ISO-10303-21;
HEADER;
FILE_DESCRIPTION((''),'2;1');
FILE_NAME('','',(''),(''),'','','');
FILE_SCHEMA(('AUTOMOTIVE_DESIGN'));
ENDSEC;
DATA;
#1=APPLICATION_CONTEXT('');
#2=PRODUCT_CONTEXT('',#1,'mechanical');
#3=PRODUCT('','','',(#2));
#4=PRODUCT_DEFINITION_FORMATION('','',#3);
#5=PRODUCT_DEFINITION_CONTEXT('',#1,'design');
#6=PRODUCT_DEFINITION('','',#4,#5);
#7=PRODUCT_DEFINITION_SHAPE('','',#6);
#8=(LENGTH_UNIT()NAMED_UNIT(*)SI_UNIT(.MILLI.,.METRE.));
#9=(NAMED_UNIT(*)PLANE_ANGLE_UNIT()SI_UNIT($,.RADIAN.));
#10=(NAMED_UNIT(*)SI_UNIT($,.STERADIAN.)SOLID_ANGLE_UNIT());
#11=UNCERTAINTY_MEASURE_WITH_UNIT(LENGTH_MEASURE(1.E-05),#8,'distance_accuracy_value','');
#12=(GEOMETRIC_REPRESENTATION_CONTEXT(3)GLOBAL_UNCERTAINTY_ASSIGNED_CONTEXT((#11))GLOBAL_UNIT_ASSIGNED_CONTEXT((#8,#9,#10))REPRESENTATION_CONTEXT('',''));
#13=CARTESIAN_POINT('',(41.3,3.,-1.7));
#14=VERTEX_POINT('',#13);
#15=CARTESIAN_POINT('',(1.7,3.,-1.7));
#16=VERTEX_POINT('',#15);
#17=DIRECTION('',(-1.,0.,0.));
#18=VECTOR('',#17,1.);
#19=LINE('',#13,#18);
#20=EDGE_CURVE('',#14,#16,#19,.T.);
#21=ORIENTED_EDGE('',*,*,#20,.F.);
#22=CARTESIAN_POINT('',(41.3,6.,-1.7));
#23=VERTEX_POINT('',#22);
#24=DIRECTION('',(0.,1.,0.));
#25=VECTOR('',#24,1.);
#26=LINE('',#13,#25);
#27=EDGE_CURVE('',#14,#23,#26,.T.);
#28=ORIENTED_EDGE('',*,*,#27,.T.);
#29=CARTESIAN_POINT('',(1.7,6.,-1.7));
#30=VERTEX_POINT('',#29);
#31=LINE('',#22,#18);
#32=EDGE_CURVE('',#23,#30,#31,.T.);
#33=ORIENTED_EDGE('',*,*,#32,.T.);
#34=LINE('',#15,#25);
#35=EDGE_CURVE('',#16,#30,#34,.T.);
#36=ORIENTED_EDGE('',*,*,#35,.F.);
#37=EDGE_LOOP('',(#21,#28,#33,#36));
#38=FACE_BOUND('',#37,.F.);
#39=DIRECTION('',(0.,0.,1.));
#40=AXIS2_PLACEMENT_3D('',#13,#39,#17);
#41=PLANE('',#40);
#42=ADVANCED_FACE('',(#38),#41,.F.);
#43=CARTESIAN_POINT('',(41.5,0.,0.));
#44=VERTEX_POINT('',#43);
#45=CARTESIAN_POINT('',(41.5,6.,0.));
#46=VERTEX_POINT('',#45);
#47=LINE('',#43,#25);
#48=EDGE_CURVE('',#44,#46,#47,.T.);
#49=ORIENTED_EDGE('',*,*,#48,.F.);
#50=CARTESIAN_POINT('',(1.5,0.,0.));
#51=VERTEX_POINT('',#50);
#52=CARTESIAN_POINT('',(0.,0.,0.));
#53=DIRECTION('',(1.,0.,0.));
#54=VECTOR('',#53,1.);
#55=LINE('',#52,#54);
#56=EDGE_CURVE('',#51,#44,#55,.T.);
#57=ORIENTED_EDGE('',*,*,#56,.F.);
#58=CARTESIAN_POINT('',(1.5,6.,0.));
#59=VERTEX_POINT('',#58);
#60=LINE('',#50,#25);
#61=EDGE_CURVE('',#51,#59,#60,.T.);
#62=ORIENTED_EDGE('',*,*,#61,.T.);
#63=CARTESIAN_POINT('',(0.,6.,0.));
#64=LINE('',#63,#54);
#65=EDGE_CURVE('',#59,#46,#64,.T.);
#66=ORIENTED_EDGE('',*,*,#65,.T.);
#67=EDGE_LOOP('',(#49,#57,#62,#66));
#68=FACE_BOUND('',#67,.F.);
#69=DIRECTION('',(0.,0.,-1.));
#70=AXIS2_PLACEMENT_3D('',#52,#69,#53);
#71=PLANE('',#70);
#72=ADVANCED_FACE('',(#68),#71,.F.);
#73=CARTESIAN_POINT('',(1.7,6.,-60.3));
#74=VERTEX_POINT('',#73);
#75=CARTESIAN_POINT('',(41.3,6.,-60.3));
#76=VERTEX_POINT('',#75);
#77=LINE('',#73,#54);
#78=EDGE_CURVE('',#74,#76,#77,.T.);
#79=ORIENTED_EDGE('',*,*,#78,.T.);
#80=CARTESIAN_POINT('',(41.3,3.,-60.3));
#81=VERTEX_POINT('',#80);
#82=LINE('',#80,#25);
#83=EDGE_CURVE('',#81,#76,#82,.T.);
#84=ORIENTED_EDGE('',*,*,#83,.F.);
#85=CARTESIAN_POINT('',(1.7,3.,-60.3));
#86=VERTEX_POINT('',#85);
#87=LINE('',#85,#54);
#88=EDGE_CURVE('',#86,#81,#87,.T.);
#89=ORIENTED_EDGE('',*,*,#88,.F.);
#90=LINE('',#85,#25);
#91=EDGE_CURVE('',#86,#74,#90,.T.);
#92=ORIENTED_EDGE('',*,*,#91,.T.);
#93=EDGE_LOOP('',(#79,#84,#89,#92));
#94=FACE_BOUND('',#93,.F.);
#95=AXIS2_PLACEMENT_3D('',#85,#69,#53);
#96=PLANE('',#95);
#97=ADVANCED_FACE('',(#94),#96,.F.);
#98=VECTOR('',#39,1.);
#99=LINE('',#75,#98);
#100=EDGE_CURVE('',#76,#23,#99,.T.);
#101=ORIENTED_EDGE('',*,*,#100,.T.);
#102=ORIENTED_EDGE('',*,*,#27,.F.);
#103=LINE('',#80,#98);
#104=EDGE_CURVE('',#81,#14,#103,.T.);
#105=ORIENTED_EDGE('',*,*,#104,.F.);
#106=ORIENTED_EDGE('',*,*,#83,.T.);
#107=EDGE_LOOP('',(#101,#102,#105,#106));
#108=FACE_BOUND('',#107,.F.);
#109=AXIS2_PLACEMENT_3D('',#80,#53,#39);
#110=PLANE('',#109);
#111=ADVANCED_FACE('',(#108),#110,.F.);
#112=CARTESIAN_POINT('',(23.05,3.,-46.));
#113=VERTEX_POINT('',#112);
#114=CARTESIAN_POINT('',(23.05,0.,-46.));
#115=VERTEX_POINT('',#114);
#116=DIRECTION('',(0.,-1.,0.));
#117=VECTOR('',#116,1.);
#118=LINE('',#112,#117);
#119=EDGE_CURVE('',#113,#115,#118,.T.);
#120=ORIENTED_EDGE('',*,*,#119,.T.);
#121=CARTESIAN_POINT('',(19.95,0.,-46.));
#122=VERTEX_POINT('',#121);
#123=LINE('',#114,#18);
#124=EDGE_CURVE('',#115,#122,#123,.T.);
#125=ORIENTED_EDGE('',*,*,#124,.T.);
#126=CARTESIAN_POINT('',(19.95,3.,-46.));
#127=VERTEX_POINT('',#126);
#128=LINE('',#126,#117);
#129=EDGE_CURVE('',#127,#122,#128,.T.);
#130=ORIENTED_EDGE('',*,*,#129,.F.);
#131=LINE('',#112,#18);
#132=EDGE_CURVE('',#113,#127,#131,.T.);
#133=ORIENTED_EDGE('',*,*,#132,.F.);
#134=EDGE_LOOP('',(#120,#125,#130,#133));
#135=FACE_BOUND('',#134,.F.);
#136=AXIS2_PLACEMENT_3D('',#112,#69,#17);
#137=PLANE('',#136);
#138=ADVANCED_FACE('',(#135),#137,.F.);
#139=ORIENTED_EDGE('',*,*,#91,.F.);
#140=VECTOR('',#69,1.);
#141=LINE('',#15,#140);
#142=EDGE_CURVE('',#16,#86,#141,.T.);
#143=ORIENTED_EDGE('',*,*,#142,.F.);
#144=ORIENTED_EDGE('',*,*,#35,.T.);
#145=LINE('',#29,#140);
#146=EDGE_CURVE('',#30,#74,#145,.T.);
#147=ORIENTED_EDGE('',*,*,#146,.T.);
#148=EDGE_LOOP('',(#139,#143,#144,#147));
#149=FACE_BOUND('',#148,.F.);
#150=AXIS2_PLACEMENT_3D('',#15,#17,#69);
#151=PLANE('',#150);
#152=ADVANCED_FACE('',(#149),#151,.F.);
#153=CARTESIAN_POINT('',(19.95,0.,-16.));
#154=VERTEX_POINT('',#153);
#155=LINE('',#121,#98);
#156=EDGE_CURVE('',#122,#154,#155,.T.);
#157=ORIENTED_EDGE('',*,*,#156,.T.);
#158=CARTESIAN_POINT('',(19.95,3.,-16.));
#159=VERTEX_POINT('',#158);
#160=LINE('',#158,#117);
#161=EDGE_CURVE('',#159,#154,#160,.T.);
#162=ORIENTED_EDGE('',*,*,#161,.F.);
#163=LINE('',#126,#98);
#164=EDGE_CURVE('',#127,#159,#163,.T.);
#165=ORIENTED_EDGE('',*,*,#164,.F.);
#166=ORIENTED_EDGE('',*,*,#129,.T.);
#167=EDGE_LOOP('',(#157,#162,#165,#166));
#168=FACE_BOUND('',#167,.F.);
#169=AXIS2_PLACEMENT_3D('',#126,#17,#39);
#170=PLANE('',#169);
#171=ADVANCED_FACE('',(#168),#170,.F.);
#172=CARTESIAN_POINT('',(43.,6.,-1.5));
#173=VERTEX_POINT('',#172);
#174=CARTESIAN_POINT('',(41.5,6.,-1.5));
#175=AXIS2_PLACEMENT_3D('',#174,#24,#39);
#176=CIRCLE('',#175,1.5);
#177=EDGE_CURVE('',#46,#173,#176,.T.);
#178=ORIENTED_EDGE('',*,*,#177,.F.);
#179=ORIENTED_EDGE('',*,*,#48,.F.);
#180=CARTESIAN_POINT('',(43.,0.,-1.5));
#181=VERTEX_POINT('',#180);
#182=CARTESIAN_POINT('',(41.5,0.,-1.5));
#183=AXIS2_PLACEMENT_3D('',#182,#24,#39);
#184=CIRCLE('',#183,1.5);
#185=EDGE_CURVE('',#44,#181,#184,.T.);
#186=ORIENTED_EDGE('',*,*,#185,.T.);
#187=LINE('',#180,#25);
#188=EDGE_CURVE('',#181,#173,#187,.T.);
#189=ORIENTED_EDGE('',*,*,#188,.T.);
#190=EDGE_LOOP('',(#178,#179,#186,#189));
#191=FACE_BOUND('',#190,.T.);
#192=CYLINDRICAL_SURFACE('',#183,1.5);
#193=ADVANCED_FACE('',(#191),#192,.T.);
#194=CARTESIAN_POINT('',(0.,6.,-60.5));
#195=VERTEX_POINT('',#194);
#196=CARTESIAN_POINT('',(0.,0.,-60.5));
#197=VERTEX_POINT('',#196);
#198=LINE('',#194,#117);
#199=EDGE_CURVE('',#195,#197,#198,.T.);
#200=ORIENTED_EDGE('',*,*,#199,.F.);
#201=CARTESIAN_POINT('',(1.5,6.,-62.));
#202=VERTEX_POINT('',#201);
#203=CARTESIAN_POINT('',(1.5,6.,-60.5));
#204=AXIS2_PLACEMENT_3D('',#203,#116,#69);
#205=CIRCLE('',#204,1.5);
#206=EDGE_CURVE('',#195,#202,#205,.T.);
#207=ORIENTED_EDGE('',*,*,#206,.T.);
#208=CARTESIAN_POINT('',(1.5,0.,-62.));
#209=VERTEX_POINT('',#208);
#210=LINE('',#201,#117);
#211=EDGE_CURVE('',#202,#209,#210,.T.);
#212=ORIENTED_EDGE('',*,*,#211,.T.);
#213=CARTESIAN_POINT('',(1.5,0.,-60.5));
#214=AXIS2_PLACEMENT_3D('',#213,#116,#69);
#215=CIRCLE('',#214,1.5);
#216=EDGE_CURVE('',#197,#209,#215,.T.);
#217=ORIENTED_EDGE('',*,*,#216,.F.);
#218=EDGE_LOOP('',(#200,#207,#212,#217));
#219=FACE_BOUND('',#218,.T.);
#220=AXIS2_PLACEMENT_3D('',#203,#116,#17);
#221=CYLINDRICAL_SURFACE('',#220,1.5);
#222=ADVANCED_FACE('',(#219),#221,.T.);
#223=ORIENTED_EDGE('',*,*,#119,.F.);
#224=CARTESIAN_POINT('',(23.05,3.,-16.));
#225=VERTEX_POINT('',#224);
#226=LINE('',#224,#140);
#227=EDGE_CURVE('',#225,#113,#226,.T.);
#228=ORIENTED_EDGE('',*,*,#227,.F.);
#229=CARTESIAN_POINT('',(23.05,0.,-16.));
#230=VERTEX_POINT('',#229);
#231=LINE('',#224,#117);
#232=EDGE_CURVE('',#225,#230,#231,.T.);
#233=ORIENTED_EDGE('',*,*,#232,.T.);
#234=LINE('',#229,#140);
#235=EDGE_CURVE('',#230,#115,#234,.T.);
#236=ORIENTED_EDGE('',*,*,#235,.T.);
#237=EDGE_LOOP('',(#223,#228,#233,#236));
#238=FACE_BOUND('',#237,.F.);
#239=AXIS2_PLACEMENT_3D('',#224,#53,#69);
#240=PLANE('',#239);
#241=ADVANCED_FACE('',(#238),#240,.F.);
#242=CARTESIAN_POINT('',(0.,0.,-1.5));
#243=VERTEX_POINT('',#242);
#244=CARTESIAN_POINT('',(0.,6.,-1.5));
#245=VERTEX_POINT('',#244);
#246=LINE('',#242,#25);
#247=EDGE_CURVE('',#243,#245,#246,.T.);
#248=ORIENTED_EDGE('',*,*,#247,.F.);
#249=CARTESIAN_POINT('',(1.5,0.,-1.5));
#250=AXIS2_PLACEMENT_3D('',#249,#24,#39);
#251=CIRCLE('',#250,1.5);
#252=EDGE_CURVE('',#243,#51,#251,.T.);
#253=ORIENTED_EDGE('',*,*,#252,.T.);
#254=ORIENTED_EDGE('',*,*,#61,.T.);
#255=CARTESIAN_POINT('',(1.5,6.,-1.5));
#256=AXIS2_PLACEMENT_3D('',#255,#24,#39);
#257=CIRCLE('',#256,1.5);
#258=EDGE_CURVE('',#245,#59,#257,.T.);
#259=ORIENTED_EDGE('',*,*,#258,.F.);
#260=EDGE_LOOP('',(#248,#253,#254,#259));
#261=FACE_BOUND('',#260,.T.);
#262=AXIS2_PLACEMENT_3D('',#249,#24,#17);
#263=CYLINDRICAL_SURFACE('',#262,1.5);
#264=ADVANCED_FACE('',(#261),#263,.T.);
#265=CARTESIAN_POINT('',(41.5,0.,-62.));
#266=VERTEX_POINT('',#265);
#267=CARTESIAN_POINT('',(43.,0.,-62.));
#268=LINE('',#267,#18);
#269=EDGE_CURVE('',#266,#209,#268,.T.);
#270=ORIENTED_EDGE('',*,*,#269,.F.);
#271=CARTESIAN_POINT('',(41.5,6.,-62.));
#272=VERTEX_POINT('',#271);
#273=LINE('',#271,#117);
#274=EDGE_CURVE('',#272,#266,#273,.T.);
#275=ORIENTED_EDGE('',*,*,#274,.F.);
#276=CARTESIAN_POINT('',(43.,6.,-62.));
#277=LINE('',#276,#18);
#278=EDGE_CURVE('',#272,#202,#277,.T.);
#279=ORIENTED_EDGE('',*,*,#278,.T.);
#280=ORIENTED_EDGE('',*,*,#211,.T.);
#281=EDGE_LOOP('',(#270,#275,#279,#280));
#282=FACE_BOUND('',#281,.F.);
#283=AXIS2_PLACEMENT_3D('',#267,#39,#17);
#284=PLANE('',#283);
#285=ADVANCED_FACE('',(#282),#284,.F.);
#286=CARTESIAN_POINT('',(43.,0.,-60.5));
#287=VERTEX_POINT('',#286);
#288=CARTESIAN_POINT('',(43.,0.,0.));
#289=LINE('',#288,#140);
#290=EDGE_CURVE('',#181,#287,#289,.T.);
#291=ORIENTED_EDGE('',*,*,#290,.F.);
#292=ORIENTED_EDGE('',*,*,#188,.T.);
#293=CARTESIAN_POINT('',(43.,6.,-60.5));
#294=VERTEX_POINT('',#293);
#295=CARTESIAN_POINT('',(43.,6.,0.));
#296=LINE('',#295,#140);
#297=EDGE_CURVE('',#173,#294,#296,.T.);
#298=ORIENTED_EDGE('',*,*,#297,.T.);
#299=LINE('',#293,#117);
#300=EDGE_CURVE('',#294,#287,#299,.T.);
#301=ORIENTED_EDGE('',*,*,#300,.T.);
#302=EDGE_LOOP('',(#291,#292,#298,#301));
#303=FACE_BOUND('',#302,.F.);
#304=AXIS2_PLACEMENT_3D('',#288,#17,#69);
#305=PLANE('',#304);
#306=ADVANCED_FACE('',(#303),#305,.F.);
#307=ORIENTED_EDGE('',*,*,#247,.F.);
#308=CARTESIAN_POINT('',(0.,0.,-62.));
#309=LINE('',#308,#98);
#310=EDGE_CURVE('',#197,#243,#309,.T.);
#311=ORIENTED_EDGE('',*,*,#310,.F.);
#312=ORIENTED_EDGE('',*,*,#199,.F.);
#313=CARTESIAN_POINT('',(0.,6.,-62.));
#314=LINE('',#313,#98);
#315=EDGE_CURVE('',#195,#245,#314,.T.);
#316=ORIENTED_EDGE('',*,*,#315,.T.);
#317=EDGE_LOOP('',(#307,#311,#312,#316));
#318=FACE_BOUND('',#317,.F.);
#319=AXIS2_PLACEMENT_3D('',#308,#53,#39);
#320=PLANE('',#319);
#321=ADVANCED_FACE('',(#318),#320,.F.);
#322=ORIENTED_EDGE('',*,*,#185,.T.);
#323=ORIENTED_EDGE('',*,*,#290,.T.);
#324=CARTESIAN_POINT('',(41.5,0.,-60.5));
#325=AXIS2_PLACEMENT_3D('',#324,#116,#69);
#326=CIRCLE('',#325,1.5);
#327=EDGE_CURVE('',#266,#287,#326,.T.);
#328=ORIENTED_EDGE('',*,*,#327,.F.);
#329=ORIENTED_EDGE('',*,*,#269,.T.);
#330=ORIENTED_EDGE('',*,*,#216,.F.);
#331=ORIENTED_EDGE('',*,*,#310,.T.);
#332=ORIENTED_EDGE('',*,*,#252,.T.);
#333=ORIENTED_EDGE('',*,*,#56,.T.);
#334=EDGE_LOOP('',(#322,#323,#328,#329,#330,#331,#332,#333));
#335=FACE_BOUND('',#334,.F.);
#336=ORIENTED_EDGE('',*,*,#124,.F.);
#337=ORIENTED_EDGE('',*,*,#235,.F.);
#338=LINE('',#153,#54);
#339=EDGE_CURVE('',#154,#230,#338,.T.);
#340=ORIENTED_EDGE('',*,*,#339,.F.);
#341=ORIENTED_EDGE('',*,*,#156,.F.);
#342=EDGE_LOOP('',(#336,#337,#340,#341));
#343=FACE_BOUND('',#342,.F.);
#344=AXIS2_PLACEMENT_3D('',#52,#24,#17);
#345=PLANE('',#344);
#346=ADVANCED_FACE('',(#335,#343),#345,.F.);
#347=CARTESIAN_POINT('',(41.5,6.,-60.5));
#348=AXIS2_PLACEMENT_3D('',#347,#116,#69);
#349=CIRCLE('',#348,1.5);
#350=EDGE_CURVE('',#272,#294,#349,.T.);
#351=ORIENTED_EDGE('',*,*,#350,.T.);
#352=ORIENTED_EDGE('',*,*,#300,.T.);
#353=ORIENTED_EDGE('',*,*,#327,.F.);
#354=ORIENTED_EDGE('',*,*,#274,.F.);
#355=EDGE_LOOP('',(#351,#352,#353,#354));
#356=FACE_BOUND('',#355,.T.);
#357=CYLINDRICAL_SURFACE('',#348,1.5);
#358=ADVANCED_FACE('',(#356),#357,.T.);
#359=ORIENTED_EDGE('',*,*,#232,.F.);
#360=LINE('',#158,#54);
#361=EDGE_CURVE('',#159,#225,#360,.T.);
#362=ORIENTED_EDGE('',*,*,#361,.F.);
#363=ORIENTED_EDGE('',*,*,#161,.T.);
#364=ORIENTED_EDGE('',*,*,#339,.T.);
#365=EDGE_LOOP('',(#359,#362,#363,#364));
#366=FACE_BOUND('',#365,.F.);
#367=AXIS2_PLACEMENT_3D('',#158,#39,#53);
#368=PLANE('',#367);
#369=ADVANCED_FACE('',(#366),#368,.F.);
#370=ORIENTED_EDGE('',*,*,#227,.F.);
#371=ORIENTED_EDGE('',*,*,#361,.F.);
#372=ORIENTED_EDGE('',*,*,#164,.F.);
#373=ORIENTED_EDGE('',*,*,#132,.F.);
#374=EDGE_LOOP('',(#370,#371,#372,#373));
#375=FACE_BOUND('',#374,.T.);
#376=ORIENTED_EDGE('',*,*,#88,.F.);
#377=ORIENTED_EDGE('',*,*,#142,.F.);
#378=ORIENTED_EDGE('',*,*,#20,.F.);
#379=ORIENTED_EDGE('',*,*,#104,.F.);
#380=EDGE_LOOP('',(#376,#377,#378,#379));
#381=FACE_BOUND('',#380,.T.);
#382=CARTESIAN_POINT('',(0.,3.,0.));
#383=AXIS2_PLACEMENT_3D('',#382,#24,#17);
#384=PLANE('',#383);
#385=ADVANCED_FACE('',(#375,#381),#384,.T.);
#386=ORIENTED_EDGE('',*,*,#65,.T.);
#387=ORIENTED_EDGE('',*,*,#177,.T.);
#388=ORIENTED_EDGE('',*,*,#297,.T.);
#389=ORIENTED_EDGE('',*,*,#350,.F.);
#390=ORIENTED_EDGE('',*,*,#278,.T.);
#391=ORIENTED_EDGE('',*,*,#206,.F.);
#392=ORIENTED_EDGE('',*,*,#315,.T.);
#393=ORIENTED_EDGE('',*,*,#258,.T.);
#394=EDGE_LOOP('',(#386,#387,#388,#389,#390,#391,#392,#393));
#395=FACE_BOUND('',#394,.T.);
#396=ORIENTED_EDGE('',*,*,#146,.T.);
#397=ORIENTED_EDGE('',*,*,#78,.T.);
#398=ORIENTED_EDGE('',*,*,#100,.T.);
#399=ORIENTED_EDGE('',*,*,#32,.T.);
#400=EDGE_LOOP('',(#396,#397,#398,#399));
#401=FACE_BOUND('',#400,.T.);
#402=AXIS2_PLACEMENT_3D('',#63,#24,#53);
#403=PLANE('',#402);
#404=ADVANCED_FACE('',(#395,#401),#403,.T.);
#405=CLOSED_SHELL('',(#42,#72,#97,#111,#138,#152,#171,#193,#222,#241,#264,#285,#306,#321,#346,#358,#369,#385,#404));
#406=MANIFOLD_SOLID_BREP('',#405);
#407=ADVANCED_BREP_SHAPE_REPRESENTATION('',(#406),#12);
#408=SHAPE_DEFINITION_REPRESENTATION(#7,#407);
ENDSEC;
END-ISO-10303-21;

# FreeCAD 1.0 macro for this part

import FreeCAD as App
import Part
import Sketcher
Q = App.Units.Quantity


def edges_at(feature, points):
    """Names of the edges that pass closest to the given points."""
    edges = feature.Shape.Edges
    near = lambda p: min(range(len(edges)), key=lambda i: edges[i].distToShape(Part.Vertex(*p))[0])
    return sorted({f"Edge{near(p) + 1}" for p in points})

doc = App.newDocument("Part")
body = doc.addObject("PartDesign::Body", "Body")

sketch1 = body.newObject("Sketcher::SketchObject", "Sketch")
sketch1.AttachmentSupport = (doc.getObject("XZ_Plane"), [""])
sketch1.MapMode = "FlatFace"
sketch1.addGeometry(Part.LineSegment(App.Vector(0, -62, 0), App.Vector(0, 0, 0)), False)
sketch1.addGeometry(Part.LineSegment(App.Vector(0, 0, 0), App.Vector(43, 0, 0)), False)
sketch1.addGeometry(Part.LineSegment(App.Vector(43, 0, 0), App.Vector(43, -62, 0)), False)
sketch1.addGeometry(Part.LineSegment(App.Vector(43, -62, 0), App.Vector(0, -62, 0)), False)
sketch1.addConstraint(Sketcher.Constraint("Coincident", 0, 2, 1, 1))
sketch1.addConstraint(Sketcher.Constraint("Coincident", 1, 2, 2, 1))
sketch1.addConstraint(Sketcher.Constraint("Coincident", 2, 2, 3, 1))
sketch1.addConstraint(Sketcher.Constraint("Coincident", 3, 2, 0, 1))
sketch1.addConstraint(Sketcher.Constraint("Vertical", 0))
sketch1.addConstraint(Sketcher.Constraint("Horizontal", 1))
sketch1.addConstraint(Sketcher.Constraint("Vertical", 2))
sketch1.addConstraint(Sketcher.Constraint("Horizontal", 3))
sketch1.addConstraint(Sketcher.Constraint("Coincident", 0, 2, -1, 1))
sketch1.addConstraint(Sketcher.Constraint("DistanceX", 1, 1, 1, 2, Q("43 mm")))
sketch1.addConstraint(Sketcher.Constraint("DistanceY", 0, 1, 0, 2, Q("62 mm")))
pad1 = body.newObject("PartDesign::Pad", "Pad")
pad1.Profile = sketch1
pad1.Length = 3
pad1.Reversed = True

sketch2 = body.newObject("Sketcher::SketchObject", "Sketch001")
sketch2.AttachmentSupport = (doc.getObject("XZ_Plane"), [""])
sketch2.MapMode = "FlatFace"
sketch2.AttachmentOffset = App.Placement(App.Vector(0, 0, -3), App.Rotation())
sketch2.addGeometry(Part.LineSegment(App.Vector(0, 0, 0), App.Vector(43, 0, 0)), False)
sketch2.addGeometry(Part.LineSegment(App.Vector(43, 0, 0), App.Vector(43, -62, 0)), False)
sketch2.addGeometry(Part.LineSegment(App.Vector(43, -62, 0), App.Vector(0, -62, 0)), False)
sketch2.addGeometry(Part.LineSegment(App.Vector(0, -62, 0), App.Vector(0, 0, 0)), False)
sketch2.addGeometry(Part.LineSegment(App.Vector(1.7, -1.7, 0), App.Vector(1.7, -60.3, 0)), False)
sketch2.addGeometry(Part.LineSegment(App.Vector(1.7, -60.3, 0), App.Vector(41.3, -60.3, 0)), False)
sketch2.addGeometry(Part.LineSegment(App.Vector(41.3, -60.3, 0), App.Vector(41.3, -1.7, 0)), False)
sketch2.addGeometry(Part.LineSegment(App.Vector(41.3, -1.7, 0), App.Vector(1.7, -1.7, 0)), False)
sketch2.addConstraint(Sketcher.Constraint("Coincident", 0, 2, 1, 1))
sketch2.addConstraint(Sketcher.Constraint("Coincident", 1, 2, 2, 1))
sketch2.addConstraint(Sketcher.Constraint("Coincident", 2, 2, 3, 1))
sketch2.addConstraint(Sketcher.Constraint("Coincident", 3, 2, 0, 1))
sketch2.addConstraint(Sketcher.Constraint("Coincident", 4, 2, 5, 1))
sketch2.addConstraint(Sketcher.Constraint("Coincident", 5, 2, 6, 1))
sketch2.addConstraint(Sketcher.Constraint("Coincident", 6, 2, 7, 1))
sketch2.addConstraint(Sketcher.Constraint("Coincident", 7, 2, 4, 1))
sketch2.addConstraint(Sketcher.Constraint("Horizontal", 0))
sketch2.addConstraint(Sketcher.Constraint("Vertical", 1))
sketch2.addConstraint(Sketcher.Constraint("Horizontal", 2))
sketch2.addConstraint(Sketcher.Constraint("Vertical", 3))
sketch2.addConstraint(Sketcher.Constraint("Vertical", 4))
sketch2.addConstraint(Sketcher.Constraint("Horizontal", 5))
sketch2.addConstraint(Sketcher.Constraint("Vertical", 6))
sketch2.addConstraint(Sketcher.Constraint("Horizontal", 7))
sketch2.addConstraint(Sketcher.Constraint("Coincident", 3, 2, -1, 1))
sketch2.addConstraint(Sketcher.Constraint("DistanceX", -1, 1, 4, 2, Q("1.7 mm")))
sketch2.addConstraint(Sketcher.Constraint("DistanceY", 6, 2, -1, 1, Q("1.7 mm")))
sketch2.addConstraint(Sketcher.Constraint("DistanceY", 2, 2, 4, 2, Q("1.7 mm")))
sketch2.addConstraint(Sketcher.Constraint("DistanceX", 5, 2, 1, 2, Q("1.7 mm")))
sketch2.addConstraint(Sketcher.Constraint("DistanceX", 0, 1, 0, 2, Q("43 mm")))
sketch2.addConstraint(Sketcher.Constraint("DistanceY", 1, 2, 1, 1, Q("62 mm")))
pad2 = body.newObject("PartDesign::Pad", "Pad001")
pad2.Profile = sketch2
pad2.Length = 3
pad2.Reversed = True

sketch3 = body.newObject("Sketcher::SketchObject", "Sketch002")
sketch3.AttachmentSupport = (doc.getObject("XZ_Plane"), [""])
sketch3.MapMode = "FlatFace"
sketch3.AttachmentOffset = App.Placement(App.Vector(0, 0, -3), App.Rotation())
sketch3.addGeometry(Part.LineSegment(App.Vector(23.05, -16, 0), App.Vector(23.05, -46, 0)), False)
sketch3.addGeometry(Part.LineSegment(App.Vector(23.05, -46, 0), App.Vector(19.95, -46, 0)), False)
sketch3.addGeometry(Part.LineSegment(App.Vector(19.95, -46, 0), App.Vector(19.95, -16, 0)), False)
sketch3.addGeometry(Part.LineSegment(App.Vector(19.95, -16, 0), App.Vector(23.05, -16, 0)), False)
sketch3.addConstraint(Sketcher.Constraint("Coincident", 0, 2, 1, 1))
sketch3.addConstraint(Sketcher.Constraint("Coincident", 1, 2, 2, 1))
sketch3.addConstraint(Sketcher.Constraint("Coincident", 2, 2, 3, 1))
sketch3.addConstraint(Sketcher.Constraint("Coincident", 3, 2, 0, 1))
sketch3.addConstraint(Sketcher.Constraint("Vertical", 0))
sketch3.addConstraint(Sketcher.Constraint("Horizontal", 1))
sketch3.addConstraint(Sketcher.Constraint("Vertical", 2))
sketch3.addConstraint(Sketcher.Constraint("Horizontal", 3))
sketch3.addConstraint(Sketcher.Constraint("DistanceY", 0, 2, 0, 1, Q("30 mm")))
sketch3.addConstraint(Sketcher.Constraint("DistanceX", 1, 2, 1, 1, Q("3.1 mm")))
sketch3.addConstraint(Sketcher.Constraint("DistanceY", 0, 2, -1, 1, Q("46 mm")))
sketch3.addConstraint(Sketcher.Constraint("DistanceX", -1, 1, 0, 2, Q("23.05 mm")))
pocket1 = body.newObject("PartDesign::Pocket", "Pocket")
pocket1.Profile = sketch3
pocket1.Length = 3
pocket1.Reversed = True
doc.recompute()

fillet = body.newObject("PartDesign::Fillet", "Fillet")
fillet.Base = (pocket1, edges_at(pocket1, [
    (43, 3, 0),
    (0, 3, 0),
    (0, 3, -62),
    (43, 3, -62),
]))
fillet.Radius = 1.5

doc.recompute()
